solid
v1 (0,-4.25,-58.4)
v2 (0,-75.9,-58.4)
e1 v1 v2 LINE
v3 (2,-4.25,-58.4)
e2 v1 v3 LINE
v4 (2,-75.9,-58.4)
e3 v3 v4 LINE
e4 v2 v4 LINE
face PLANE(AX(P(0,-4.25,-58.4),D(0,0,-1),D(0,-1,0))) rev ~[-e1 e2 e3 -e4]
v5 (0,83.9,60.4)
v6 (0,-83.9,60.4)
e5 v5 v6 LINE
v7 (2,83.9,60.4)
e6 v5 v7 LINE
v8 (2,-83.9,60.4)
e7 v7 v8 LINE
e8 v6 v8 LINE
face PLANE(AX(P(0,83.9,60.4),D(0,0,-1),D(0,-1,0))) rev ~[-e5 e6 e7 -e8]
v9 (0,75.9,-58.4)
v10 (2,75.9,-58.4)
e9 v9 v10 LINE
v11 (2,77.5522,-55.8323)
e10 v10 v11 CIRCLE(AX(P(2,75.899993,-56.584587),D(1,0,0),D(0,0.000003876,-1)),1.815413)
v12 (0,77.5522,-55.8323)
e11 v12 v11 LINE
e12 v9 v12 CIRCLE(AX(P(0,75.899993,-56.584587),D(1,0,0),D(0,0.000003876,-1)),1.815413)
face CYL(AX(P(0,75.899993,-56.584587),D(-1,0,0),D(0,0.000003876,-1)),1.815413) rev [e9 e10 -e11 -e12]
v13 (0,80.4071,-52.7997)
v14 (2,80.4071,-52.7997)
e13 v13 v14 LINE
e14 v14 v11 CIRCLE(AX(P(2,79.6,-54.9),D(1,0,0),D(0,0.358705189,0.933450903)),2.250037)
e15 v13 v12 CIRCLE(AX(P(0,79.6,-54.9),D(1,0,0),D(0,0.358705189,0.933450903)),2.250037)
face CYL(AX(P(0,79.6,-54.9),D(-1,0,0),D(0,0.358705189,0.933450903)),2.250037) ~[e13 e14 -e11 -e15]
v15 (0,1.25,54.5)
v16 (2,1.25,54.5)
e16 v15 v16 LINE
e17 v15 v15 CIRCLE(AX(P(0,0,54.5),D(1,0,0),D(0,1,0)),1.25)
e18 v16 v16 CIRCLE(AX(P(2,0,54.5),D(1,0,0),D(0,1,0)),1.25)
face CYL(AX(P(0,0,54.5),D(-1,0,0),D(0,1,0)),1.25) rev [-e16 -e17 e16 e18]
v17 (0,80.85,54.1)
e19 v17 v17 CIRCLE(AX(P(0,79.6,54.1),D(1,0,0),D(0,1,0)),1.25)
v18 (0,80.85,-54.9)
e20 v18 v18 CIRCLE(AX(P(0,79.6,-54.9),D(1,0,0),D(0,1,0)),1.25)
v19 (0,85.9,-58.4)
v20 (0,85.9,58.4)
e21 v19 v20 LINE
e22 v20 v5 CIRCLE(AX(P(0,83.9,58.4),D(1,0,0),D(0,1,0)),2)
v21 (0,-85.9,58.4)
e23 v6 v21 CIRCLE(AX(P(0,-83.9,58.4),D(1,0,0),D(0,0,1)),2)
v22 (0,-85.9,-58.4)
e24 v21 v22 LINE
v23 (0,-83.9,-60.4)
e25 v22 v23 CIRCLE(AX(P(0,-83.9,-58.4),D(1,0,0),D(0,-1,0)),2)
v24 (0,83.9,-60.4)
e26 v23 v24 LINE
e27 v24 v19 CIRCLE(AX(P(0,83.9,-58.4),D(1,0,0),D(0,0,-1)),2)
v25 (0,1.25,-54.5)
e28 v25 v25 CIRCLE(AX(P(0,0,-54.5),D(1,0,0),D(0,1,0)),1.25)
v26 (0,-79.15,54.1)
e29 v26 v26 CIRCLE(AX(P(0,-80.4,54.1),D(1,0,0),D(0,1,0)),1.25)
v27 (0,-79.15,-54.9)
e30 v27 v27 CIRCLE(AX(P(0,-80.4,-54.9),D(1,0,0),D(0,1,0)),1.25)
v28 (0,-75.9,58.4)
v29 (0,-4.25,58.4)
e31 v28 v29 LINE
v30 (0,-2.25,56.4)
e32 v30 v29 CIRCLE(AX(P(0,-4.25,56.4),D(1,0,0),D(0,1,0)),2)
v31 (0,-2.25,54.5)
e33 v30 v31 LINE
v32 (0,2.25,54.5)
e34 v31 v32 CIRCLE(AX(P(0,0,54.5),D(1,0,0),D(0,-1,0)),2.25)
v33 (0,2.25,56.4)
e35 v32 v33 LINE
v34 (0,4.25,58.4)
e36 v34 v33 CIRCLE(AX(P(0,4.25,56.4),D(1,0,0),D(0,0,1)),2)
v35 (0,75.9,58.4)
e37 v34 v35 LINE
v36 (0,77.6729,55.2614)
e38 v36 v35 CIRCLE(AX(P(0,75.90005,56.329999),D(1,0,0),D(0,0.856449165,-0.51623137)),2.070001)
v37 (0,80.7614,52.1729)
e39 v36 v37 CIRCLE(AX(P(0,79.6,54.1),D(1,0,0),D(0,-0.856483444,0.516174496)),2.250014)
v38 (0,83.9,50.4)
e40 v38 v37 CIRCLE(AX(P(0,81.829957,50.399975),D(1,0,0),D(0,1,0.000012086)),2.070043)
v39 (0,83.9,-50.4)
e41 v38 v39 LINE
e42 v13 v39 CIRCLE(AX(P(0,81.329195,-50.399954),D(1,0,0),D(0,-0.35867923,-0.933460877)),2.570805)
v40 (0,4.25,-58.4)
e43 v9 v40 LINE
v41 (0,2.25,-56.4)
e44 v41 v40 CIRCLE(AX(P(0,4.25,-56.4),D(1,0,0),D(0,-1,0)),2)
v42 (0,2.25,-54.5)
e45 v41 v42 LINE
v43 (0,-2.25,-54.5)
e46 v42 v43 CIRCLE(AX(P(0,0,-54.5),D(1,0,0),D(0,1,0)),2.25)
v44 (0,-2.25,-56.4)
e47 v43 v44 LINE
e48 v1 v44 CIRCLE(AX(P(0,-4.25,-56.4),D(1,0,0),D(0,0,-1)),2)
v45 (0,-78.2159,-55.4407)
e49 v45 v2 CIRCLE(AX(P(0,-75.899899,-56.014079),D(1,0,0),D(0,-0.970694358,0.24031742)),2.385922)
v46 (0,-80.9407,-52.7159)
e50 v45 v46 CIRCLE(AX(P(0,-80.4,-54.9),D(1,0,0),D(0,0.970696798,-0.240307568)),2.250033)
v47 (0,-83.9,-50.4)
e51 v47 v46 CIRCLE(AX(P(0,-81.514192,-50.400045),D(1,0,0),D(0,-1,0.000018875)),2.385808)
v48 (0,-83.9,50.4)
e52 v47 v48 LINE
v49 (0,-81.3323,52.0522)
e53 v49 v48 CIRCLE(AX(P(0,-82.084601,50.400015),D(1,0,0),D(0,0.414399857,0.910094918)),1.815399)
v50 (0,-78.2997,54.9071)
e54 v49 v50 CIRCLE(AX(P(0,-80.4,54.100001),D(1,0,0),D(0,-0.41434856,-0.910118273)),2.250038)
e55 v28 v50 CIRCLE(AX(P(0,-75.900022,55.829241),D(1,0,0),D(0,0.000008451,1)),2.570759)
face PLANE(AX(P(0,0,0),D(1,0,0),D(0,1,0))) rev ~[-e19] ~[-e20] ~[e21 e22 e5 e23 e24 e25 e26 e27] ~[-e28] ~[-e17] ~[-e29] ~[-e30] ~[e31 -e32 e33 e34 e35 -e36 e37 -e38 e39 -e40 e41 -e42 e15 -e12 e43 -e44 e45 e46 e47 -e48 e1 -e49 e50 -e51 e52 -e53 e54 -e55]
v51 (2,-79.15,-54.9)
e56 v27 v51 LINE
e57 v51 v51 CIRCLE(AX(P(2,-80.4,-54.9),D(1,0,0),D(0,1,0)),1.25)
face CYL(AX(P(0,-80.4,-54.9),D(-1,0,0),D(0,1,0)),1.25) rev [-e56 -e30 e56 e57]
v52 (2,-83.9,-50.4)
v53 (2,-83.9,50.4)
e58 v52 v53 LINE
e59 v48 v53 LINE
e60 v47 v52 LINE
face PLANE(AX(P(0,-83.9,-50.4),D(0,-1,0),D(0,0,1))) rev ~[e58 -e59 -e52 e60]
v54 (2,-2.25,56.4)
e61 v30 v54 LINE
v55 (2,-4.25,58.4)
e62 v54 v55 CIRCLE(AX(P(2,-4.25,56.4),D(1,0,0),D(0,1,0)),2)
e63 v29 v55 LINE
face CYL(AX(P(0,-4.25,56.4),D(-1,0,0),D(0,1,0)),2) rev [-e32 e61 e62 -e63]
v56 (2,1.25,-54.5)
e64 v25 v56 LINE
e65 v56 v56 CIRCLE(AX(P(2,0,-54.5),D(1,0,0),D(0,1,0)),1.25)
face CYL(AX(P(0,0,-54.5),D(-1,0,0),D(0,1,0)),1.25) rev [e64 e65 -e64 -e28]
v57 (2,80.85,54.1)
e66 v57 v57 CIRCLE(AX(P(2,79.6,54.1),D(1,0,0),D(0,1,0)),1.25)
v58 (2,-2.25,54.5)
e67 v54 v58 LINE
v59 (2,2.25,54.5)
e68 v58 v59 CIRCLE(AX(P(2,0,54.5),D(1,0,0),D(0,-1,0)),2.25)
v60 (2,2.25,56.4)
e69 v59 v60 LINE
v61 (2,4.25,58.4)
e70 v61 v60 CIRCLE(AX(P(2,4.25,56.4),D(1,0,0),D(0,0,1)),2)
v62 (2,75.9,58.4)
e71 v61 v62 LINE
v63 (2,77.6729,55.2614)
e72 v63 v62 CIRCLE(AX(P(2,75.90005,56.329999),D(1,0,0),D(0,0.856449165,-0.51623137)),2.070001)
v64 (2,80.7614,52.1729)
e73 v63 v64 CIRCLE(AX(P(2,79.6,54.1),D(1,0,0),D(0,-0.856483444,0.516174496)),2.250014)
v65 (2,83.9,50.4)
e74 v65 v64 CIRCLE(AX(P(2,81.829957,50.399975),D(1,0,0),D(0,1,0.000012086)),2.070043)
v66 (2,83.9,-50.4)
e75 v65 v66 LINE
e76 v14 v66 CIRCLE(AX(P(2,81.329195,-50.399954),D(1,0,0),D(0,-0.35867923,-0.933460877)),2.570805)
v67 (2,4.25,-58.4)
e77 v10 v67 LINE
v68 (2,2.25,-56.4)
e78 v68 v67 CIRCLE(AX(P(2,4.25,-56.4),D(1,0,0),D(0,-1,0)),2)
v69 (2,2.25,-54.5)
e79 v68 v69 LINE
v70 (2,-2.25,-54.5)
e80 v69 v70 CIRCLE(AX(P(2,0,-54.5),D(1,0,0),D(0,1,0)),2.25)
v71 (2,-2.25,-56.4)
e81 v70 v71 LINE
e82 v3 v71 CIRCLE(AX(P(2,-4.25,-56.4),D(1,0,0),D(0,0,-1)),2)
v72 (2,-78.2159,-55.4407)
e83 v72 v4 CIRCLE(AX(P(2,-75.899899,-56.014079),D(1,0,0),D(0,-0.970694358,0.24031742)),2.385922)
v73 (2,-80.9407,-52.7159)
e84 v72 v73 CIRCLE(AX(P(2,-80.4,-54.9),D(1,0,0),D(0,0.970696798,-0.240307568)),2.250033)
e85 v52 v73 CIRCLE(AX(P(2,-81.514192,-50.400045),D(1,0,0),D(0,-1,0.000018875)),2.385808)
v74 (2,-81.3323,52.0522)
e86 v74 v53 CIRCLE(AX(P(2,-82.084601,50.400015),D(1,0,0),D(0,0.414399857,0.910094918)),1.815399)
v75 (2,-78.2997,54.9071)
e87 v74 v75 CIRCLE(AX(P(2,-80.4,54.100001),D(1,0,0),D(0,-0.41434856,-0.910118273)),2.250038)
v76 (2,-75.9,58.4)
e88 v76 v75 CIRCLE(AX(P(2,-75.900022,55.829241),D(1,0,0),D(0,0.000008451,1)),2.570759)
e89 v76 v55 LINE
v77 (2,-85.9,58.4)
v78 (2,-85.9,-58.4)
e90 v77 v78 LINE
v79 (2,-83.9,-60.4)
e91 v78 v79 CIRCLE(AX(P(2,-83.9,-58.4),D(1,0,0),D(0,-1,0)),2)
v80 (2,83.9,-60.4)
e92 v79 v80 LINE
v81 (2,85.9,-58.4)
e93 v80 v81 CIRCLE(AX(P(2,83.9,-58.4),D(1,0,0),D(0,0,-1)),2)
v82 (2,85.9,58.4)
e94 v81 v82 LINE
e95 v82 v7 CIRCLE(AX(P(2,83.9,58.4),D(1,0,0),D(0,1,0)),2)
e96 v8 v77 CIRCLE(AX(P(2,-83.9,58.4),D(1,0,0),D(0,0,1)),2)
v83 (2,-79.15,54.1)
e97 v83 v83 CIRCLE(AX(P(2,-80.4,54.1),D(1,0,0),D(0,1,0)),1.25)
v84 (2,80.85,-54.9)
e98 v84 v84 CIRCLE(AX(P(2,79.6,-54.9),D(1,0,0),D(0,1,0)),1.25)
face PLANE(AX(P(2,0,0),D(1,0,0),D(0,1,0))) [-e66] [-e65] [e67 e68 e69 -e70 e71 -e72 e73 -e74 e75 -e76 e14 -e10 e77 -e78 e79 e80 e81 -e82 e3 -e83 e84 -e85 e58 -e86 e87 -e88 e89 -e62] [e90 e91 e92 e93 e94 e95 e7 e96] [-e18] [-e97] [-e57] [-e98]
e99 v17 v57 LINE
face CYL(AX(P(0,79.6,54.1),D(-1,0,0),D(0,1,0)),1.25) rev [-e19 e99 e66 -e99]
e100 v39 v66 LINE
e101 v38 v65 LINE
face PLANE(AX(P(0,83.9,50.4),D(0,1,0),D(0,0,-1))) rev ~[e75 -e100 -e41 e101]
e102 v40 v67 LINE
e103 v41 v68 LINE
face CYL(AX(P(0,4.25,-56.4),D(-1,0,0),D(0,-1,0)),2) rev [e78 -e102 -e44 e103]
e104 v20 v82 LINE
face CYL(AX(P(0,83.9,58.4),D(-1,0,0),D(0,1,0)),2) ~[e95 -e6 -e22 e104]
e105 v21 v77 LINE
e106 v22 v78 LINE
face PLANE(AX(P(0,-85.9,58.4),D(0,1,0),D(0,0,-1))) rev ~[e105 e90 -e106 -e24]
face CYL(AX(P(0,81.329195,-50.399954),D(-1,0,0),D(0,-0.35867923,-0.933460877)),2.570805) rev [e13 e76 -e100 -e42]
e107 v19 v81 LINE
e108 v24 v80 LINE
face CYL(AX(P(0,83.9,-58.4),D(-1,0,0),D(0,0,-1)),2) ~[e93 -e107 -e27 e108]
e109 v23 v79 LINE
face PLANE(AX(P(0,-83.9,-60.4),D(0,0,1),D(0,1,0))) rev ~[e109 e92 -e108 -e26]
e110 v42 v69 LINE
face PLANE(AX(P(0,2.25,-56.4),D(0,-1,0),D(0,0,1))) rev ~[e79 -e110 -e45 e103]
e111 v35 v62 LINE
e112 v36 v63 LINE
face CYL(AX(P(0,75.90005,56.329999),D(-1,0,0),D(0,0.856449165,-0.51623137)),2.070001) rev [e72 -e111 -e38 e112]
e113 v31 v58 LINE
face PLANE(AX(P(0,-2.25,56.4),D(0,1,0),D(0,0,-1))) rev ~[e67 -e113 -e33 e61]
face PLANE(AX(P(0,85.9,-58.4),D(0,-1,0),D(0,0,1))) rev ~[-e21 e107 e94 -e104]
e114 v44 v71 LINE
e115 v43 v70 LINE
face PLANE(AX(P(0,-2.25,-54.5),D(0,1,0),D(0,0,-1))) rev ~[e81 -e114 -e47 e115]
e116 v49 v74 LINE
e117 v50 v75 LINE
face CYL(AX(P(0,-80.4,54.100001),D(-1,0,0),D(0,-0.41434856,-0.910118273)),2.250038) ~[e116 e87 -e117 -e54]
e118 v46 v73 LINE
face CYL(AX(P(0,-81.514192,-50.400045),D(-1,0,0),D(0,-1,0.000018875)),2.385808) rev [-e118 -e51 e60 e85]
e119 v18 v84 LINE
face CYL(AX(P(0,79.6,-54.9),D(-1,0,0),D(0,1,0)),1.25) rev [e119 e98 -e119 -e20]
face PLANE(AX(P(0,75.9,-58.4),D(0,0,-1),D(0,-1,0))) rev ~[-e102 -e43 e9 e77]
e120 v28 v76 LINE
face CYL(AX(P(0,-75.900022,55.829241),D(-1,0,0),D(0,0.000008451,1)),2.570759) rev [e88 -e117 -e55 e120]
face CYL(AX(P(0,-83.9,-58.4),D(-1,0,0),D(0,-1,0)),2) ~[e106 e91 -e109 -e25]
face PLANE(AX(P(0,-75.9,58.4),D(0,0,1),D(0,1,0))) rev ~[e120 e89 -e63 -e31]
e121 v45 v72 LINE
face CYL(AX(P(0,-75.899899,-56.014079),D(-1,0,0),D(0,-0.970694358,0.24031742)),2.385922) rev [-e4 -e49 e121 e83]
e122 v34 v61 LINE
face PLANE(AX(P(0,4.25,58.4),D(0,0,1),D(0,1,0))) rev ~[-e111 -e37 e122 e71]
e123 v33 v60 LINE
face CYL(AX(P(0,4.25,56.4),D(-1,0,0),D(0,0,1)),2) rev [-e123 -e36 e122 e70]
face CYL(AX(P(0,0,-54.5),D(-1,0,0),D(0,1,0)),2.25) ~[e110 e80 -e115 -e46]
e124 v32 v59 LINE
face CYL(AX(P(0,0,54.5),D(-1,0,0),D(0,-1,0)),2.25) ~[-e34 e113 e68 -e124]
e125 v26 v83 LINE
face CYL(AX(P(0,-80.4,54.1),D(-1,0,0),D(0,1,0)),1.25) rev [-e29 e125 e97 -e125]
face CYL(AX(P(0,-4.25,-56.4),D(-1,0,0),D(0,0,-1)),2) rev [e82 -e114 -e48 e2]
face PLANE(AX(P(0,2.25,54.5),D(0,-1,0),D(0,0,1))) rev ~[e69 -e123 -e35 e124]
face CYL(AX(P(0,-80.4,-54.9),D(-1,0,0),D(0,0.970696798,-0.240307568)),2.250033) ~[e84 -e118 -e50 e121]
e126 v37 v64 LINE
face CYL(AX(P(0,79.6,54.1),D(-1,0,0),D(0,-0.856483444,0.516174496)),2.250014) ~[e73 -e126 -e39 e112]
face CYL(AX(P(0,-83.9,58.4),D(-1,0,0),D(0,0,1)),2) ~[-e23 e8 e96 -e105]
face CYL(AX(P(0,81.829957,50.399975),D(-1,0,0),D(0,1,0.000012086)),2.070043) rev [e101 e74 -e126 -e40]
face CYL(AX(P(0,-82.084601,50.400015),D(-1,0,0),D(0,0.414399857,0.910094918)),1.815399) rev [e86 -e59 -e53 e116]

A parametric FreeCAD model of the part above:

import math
import FreeCAD as App
import Part
import Sketcher

V = App.Vector
Q = App.Units.Quantity

doc = App.newDocument("Part")
params = doc.addObject("Spreadsheet::Sheet", "Params")
for row, (alias, value) in enumerate([
    ("sketch1_radius", "2 mm"),
    ("sketch1_diameter", "2.5 mm"),
    ("sketch1_radius2", "2.25 mm"),
    ("sketch1_radius3", "2.07 mm"),
    ("sketch1_width", "167.8 mm"),
    ("pad1_length", "2 mm"),
], start=1):
    params.set(f"A{row}", alias)
    params.set(f"B{row}", "=" + value)
    params.setAlias(f"B{row}", alias)

body = doc.addObject("PartDesign::Body", "Body")

sketch1 = body.newObject("Sketcher::SketchObject", "Sketch")
sketch1.AttachmentSupport = (doc.getObject("YZ_Plane"), [""])
sketch1.MapMode = "FlatFace"
sketch1.addGeometry([
    Part.LineSegment(V(-85.9, 58.4, 0), V(-85.9, -58.4, 0)),
    Part.ArcOfCircle(Part.Circle(V(-83.9, -58.4, 0), V(0, 0, 1), 2), math.radians(180), math.radians(270)),
    Part.LineSegment(V(-83.9, -60.4, 0), V(83.9, -60.4, 0)),
    Part.ArcOfCircle(Part.Circle(V(83.9, -58.4, 0), V(0, 0, 1), 2), math.radians(-90), math.radians(0)),
    Part.LineSegment(V(85.9, -58.4, 0), V(85.9, 58.4, 0)),
    Part.ArcOfCircle(Part.Circle(V(83.9, 58.4, 0), V(0, 0, 1), 2), math.radians(0), math.radians(90)),
    Part.LineSegment(V(83.9, 60.4, 0), V(-83.9, 60.4, 0)),
    Part.ArcOfCircle(Part.Circle(V(-83.9, 58.4, 0), V(0, 0, 1), 2), math.radians(90), math.radians(180)),
    Part.Circle(V(-80.4, -54.9, 0), V(0, 0, 1), 1.2),
    Part.Circle(V(0, -54.5, 0), V(0, 0, 1), 1.2),
    Part.Circle(V(79.6, -54.9, 0), V(0, 0, 1), 1.2),
    Part.ArcOfCircle(Part.Circle(V(-4.2, -56.4, 0), V(0, 0, 1), 2), math.radians(-90), math.radians(0)),
    Part.LineSegment(V(-4.2, -58.4, 0), V(-75.9, -58.4, 0)),
    Part.ArcOfCircle(Part.Circle(V(-75.9, -56, 0), V(0, 0, 1), 2.4), math.radians(166), math.radians(270)),
    Part.ArcOfCircle(Part.Circle(V(-80.4, -54.9, 0), V(0, 0, 1), 2.3), math.radians(-14), math.radians(104)),
    Part.ArcOfCircle(Part.Circle(V(-81.5, -50.4, 0), V(0, 0, 1), 2.4), math.radians(180), math.radians(284)),
    Part.LineSegment(V(-83.9, -50.4, 0), V(-83.9, 50.4, 0)),
    Part.ArcOfCircle(Part.Circle(V(-82.1, 50.4, 0), V(0, 0, 1), 1.8), math.radians(66), math.radians(180)),
    Part.ArcOfCircle(Part.Circle(V(-80.4, 54.1, 0), V(0, 0, 1), 2.3), math.radians(-114), math.radians(21)),
    Part.ArcOfCircle(Part.Circle(V(-75.9, 55.8, 0), V(0, 0, 1), 2.6), math.radians(90), math.radians(201)),
    Part.LineSegment(V(-75.9, 58.4, 0), V(-4.2, 58.4, 0)),
    Part.ArcOfCircle(Part.Circle(V(-4.2, 56.4, 0), V(0, 0, 1), 2), math.radians(0), math.radians(90)),
    Part.LineSegment(V(-2.2, 56.4, 0), V(-2.2, 54.5, 0)),
    Part.ArcOfCircle(Part.Circle(V(0, 54.5, 0), V(0, 0, 1), 2.2), math.radians(180), math.radians(360)),
    Part.LineSegment(V(2.2, 54.5, 0), V(2.2, 56.4, 0)),
    Part.ArcOfCircle(Part.Circle(V(4.2, 56.4, 0), V(0, 0, 1), 2), math.radians(90), math.radians(180)),
    Part.LineSegment(V(4.2, 58.4, 0), V(75.9, 58.4, 0)),
    Part.ArcOfCircle(Part.Circle(V(75.9, 56.3, 0), V(0, 0, 1), 2.1), math.radians(-31), math.radians(90)),
    Part.ArcOfCircle(Part.Circle(V(79.6, 54.1, 0), V(0, 0, 1), 2.3), math.radians(149), math.radians(301)),
    Part.ArcOfCircle(Part.Circle(V(81.8, 50.4, 0), V(0, 0, 1), 2.1), math.radians(0), math.radians(121)),
    Part.LineSegment(V(83.9, 50.4, 0), V(83.9, -50.4, 0)),
    Part.ArcOfCircle(Part.Circle(V(81.3, -50.4, 0), V(0, 0, 1), 2.6), math.radians(-111), math.radians(0)),
    Part.ArcOfCircle(Part.Circle(V(79.6, -54.9, 0), V(0, 0, 1), 2.3), math.radians(69), math.radians(204)),
    Part.ArcOfCircle(Part.Circle(V(75.9, -56.6, 0), V(0, 0, 1), 1.8), math.radians(-90), math.radians(24)),
    Part.LineSegment(V(75.9, -58.4, 0), V(4.2, -58.4, 0)),
    Part.ArcOfCircle(Part.Circle(V(4.2, -56.4, 0), V(0, 0, 1), 2), math.radians(180), math.radians(270)),
    Part.LineSegment(V(2.2, -56.4, 0), V(2.2, -54.5, 0)),
    Part.ArcOfCircle(Part.Circle(V(0, -54.5, 0), V(0, 0, 1), 2.2), math.radians(0), math.radians(180)),
    Part.LineSegment(V(-2.2, -54.5, 0), V(-2.2, -56.4, 0)),
    Part.Circle(V(-80.4, 54.1, 0), V(0, 0, 1), 1.2),
    Part.Circle(V(0, 54.5, 0), V(0, 0, 1), 1.2),
    Part.Circle(V(79.6, 54.1, 0), V(0, 0, 1), 1.2),
], False)
sketch1.addConstraint([
    Sketcher.Constraint("Tangent", 0, 2, 1, 1),
    Sketcher.Constraint("Tangent", 1, 2, 2, 1),
    Sketcher.Constraint("Tangent", 2, 2, 3, 1),
    Sketcher.Constraint("Tangent", 3, 2, 4, 1),
    Sketcher.Constraint("Tangent", 4, 2, 5, 1),
    Sketcher.Constraint("Tangent", 5, 2, 6, 1),
    Sketcher.Constraint("Tangent", 6, 2, 7, 1),
    Sketcher.Constraint("Tangent", 7, 2, 0, 1),
    Sketcher.Constraint("Tangent", 11, 1, 12, 1),
    Sketcher.Constraint("Tangent", 12, 2, 13, 2),
    Sketcher.Constraint("Tangent", 13, 1, 14, 1),
    Sketcher.Constraint("Tangent", 14, 2, 15, 2),
    Sketcher.Constraint("Tangent", 15, 1, 16, 1),
    Sketcher.Constraint("Tangent", 16, 2, 17, 2),
    Sketcher.Constraint("Tangent", 17, 1, 18, 1),
    Sketcher.Constraint("Tangent", 18, 2, 19, 2),
    Sketcher.Constraint("Tangent", 19, 1, 20, 1),
    Sketcher.Constraint("Tangent", 20, 2, 21, 2),
    Sketcher.Constraint("Tangent", 21, 1, 22, 1),
    Sketcher.Constraint("Tangent", 22, 2, 23, 1),
    Sketcher.Constraint("Tangent", 23, 2, 24, 1),
    Sketcher.Constraint("Tangent", 24, 2, 25, 2),
    Sketcher.Constraint("Tangent", 25, 1, 26, 1),
    Sketcher.Constraint("Tangent", 26, 2, 27, 2),
    Sketcher.Constraint("Tangent", 27, 1, 28, 1),
    Sketcher.Constraint("Tangent", 28, 2, 29, 2),
    Sketcher.Constraint("Tangent", 29, 1, 30, 1),
    Sketcher.Constraint("Tangent", 30, 2, 31, 2),
    Sketcher.Constraint("Tangent", 31, 1, 32, 1),
    Sketcher.Constraint("Tangent", 32, 2, 33, 2),
    Sketcher.Constraint("Tangent", 33, 1, 34, 1),
    Sketcher.Constraint("Tangent", 34, 2, 35, 2),
    Sketcher.Constraint("Tangent", 35, 1, 36, 1),
    Sketcher.Constraint("Tangent", 36, 2, 37, 1),
    Sketcher.Constraint("Tangent", 37, 2, 38, 1),
    Sketcher.Constraint("Tangent", 38, 2, 11, 2),
    Sketcher.Constraint("Vertical", 0),
    Sketcher.Constraint("Horizontal", 2),
    Sketcher.Constraint("Vertical", 4),
    Sketcher.Constraint("Horizontal", 6),
    Sketcher.Constraint("Horizontal", 12),
    Sketcher.Constraint("Vertical", 16),
    Sketcher.Constraint("Horizontal", 20),
    Sketcher.Constraint("Vertical", 22),
    Sketcher.Constraint("Vertical", 24),
    Sketcher.Constraint("Horizontal", 26),
    Sketcher.Constraint("Vertical", 30),
    Sketcher.Constraint("Horizontal", 34),
    Sketcher.Constraint("Vertical", 36),
    Sketcher.Constraint("Vertical", 38),
    Sketcher.Constraint("Coincident", 14, 3, 8, 3),
    Sketcher.Constraint("Coincident", 32, 3, 10, 3),
    Sketcher.Constraint("Coincident", 37, 3, 9, 3),
    Sketcher.Constraint("Coincident", 39, 3, 18, 3),
    Sketcher.Constraint("Coincident", 40, 3, 23, 3),
    Sketcher.Constraint("Coincident", 41, 3, 28, 3),
    Sketcher.Constraint("Equal", 1, 3),
    Sketcher.Constraint("Equal", 3, 5),
    Sketcher.Constraint("Equal", 5, 7),
    Sketcher.Constraint("Equal", 8, 9),
    Sketcher.Constraint("Equal", 9, 10),
    Sketcher.Constraint("Equal", 7, 11),
    Sketcher.Constraint("Equal", 13, 15),
    Sketcher.Constraint("Equal", 14, 18),
    Sketcher.Constraint("Equal", 11, 21),
    Sketcher.Constraint("Equal", 18, 23),
    Sketcher.Constraint("Equal", 21, 25),
    Sketcher.Constraint("Equal", 23, 28),
    Sketcher.Constraint("Equal", 27, 29),
    Sketcher.Constraint("Equal", 19, 31),
    Sketcher.Constraint("Equal", 28, 32),
    Sketcher.Constraint("Equal", 17, 33),
    Sketcher.Constraint("Equal", 25, 35),
    Sketcher.Constraint("Equal", 32, 37),
    Sketcher.Constraint("Equal", 10, 39),
    Sketcher.Constraint("Equal", 39, 40),
    Sketcher.Constraint("Equal", 40, 41),
    Sketcher.Constraint("Symmetric", 1, 3, 5, 3, -1, 1),
    Sketcher.Constraint("Symmetric", 9, 3, 23, 3, -1, 1),
    Sketcher.Constraint("Symmetric", 12, 2, 26, 2, -1, 1),
    Sketcher.Constraint("Symmetric", 15, 1, 29, 1, -1, 1),
    Sketcher.Constraint("Symmetric", 19, 1, 33, 1, -1, 1),
    Sketcher.Constraint("Symmetric", 21, 3, 25, 3, -2),
    Sketcher.Constraint("Horizontal", 8, 3, 10, 3),
    Sketcher.Constraint("Horizontal", 18, 3, 28, 3),
    Sketcher.Constraint("Horizontal", 17, 3, 29, 3),
    Sketcher.Constraint("Horizontal", 15, 3, 31, 3),
    Sketcher.Constraint("Horizontal", 3, 2, 11, 1),
    Sketcher.Constraint("Vertical", 14, 3, 18, 3),
    Sketcher.Constraint("Vertical", 13, 3, 19, 3),
    Sketcher.Constraint("Vertical", 6, 2, 15, 1),
    Sketcher.Constraint("Radius", 1, Q("2 mm")),
    Sketcher.Constraint("Diameter", 8, Q("2.5 mm")),
    Sketcher.Constraint("Radius", 14, Q("2.25 mm")),
    Sketcher.Constraint("Radius", 27, Q("2.07 mm")),
    Sketcher.Constraint("DistanceX", 2, 1, 2, 2, Q("167.8 mm")),
    Sketcher.Constraint("DistanceY", 0, 2, 0, 1, Q("116.8 mm")),
    Sketcher.Constraint("DistanceY", 16, 1, 16, 2, Q("100.8 mm")),
    Sketcher.Constraint("DistanceY", 22, 2, 22, 1, Q("1.9 mm")),
    Sketcher.Constraint("Radius", 15, Q("2.386 mm")),
])
sketch1.setExpression("Constraints[91]", "Params.sketch1_radius")
sketch1.setExpression("Constraints[92]", "Params.sketch1_diameter")
sketch1.setExpression("Constraints[93]", "Params.sketch1_radius2")
sketch1.setExpression("Constraints[94]", "Params.sketch1_radius3")
sketch1.setExpression("Constraints[95]", "Params.sketch1_width")
pad1 = body.newObject("PartDesign::Pad", "Pad")
pad1.Profile = sketch1
pad1.setExpression("Length", "Params.pad1_length")

doc.recompute()
